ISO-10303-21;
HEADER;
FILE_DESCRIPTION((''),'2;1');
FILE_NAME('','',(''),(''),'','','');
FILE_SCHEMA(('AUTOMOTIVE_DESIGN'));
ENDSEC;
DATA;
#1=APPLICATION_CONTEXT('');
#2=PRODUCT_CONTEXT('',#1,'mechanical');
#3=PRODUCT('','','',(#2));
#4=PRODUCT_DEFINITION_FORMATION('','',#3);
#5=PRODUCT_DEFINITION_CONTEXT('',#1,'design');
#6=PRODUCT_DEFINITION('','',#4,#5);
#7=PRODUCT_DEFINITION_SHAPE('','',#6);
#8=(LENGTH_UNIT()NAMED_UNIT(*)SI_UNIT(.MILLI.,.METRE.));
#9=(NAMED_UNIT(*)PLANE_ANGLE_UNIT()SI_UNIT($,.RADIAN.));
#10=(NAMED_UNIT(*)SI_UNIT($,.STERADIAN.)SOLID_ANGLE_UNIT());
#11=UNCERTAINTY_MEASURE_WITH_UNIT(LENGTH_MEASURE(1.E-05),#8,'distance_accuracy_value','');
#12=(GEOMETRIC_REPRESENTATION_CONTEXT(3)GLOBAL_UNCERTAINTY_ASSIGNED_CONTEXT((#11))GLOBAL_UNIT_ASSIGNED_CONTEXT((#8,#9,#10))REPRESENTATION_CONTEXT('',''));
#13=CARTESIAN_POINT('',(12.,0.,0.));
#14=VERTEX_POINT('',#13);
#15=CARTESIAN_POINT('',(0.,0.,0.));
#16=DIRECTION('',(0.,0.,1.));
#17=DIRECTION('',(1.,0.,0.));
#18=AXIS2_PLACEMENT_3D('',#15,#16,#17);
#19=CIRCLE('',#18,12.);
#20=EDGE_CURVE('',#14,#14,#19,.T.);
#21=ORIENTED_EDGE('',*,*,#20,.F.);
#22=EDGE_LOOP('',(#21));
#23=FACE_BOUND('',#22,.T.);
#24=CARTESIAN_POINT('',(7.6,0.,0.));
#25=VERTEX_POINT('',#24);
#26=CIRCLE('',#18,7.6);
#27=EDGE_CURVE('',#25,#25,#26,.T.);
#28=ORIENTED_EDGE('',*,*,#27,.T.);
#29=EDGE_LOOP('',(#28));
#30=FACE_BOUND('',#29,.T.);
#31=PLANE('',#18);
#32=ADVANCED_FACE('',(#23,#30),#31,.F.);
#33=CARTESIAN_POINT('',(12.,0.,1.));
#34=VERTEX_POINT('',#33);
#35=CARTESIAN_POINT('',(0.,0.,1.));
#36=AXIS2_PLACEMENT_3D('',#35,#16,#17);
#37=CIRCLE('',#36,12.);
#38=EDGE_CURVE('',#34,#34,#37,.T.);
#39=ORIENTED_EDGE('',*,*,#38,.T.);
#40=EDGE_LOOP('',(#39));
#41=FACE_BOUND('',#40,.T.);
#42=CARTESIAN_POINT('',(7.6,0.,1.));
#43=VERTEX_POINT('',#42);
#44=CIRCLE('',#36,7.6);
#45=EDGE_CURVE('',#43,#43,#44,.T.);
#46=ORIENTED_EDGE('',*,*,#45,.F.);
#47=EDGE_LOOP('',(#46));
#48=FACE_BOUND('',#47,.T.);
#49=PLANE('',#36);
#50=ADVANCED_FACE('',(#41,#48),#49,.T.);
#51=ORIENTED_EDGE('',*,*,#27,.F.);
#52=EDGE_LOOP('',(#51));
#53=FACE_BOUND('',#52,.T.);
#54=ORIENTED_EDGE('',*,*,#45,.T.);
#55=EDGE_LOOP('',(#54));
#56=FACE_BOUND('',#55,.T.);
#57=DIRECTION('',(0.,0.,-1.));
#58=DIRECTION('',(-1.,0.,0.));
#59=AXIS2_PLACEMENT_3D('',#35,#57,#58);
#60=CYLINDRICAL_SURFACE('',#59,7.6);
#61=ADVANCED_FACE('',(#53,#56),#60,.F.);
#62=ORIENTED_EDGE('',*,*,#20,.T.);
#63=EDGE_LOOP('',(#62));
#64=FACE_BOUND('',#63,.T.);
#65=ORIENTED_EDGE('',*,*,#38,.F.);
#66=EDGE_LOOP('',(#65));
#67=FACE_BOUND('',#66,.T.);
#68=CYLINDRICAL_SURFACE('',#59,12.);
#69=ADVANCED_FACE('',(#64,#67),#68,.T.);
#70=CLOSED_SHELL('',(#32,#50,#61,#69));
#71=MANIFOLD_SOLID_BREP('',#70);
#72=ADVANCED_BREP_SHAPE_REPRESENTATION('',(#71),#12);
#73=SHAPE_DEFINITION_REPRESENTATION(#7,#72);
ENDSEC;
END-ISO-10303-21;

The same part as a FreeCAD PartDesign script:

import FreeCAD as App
import Part
import Sketcher

V = App.Vector
Q = App.Units.Quantity

doc = App.newDocument("Part")
body = doc.addObject("PartDesign::Body", "Body")

# Sketch on XY plane
sketch1 = body.newObject("Sketcher::SketchObject", "Sketch")
sketch1.AttachmentSupport = (doc.getObject("XY_Plane"), [""])
sketch1.MapMode = "FlatFace"
sketch1.addGeometry(Part.Circle(V(0, 0, 0), V(0, 0, 1), 12), False)
sketch1.addGeometry(Part.Circle(V(0, 0, 0), V(0, 0, 1), 7.6), False)
sketch1.addConstraint(Sketcher.Constraint("Coincident", 0, 3, -1, 1))
sketch1.addConstraint(Sketcher.Constraint("Coincident", 1, 3, -1, 1))
sketch1.addConstraint(Sketcher.Constraint("Diameter", 0, Q("24 mm")))
sketch1.addConstraint(Sketcher.Constraint("Diameter", 1, Q("15.2 mm")))
pad1 = body.newObject("PartDesign::Pad", "Pad")
pad1.Profile = sketch1
pad1.Length = 1

doc.recompute()
